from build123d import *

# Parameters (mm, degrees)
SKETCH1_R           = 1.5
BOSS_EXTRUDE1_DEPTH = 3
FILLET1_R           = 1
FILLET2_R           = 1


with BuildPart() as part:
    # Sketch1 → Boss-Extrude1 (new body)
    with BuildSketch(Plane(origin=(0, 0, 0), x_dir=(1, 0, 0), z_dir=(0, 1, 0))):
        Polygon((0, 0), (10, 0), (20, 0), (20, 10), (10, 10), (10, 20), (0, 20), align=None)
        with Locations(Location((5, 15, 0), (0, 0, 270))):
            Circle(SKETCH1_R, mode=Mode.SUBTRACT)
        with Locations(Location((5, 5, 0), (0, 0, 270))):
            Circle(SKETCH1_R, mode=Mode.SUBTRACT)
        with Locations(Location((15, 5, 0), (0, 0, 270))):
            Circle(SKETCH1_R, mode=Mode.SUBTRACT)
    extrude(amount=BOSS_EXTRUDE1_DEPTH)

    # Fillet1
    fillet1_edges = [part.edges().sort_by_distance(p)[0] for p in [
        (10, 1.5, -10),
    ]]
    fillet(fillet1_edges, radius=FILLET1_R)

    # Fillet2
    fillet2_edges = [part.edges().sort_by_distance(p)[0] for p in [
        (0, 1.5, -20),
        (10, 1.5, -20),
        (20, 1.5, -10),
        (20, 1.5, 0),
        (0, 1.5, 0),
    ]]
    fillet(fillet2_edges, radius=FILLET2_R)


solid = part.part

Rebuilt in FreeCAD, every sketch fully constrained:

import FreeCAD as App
import Part
import Sketcher
Q = App.Units.Quantity


def edges_at(feature, points):
    """Names of the edges that pass closest to the given points."""
    edges = feature.Shape.Edges
    near = lambda p: min(range(len(edges)), key=lambda i: edges[i].distToShape(Part.Vertex(*p))[0])
    return sorted({f"Edge{near(p) + 1}" for p in points})


def add_polygon(sketch, points):
    """Adds a closed chain of lines whose ends are joined by coincident constraints."""
    first, n = sketch.GeometryCount, len(points)
    for a, b in zip(points, points[1:] + points[:1]):
        sketch.addGeometry(Part.LineSegment(App.Vector(*a, 0), App.Vector(*b, 0)), False)
    for i in range(n):
        sketch.addConstraint(Sketcher.Constraint("Coincident", first + i, 2, first + (i + 1) % n, 1))

doc = App.newDocument("Part")
params = doc.addObject("Spreadsheet::Sheet", "Params")
for row, (alias, value) in enumerate([
    ("sketch1_diameter", "3 mm"),
    ("sketch1_width", "20 mm"),
    ("pad1_length", "3 mm"),
    ("fillet_radius", "1 mm"),
    ("fillet2_radius", "1 mm"),
], start=1):
    params.set(f"A{row}", alias)
    params.set(f"B{row}", "=" + value)
    params.setAlias(f"B{row}", alias)

body = doc.addObject("PartDesign::Body", "Body")

# Sketch on XZ plane
sketch1 = body.newObject("Sketcher::SketchObject", "Sketch")
sketch1.AttachmentSupport = (doc.getObject("XZ_Plane"), [""])
sketch1.MapMode = "FlatFace"
add_polygon(sketch1, [(0, 0), (20, 0), (20, -10), (10, -10), (10, -20), (0, -20)])  # lines 0-5
sketch1.addGeometry(Part.Circle(App.Vector(5, -5, 0), App.Vector(0, 0, 1), 1.5), False)  # 6
sketch1.addGeometry(Part.Circle(App.Vector(15, -5, 0), App.Vector(0, 0, 1), 1.5), False)  # 7
sketch1.addGeometry(Part.Circle(App.Vector(5, -15, 0), App.Vector(0, 0, 1), 1.5), False)  # 8
sketch1.addConstraint([
    Sketcher.Constraint("Horizontal", 0),
    Sketcher.Constraint("Vertical", 1),
    Sketcher.Constraint("Horizontal", 2),
    Sketcher.Constraint("Vertical", 3),
    Sketcher.Constraint("Horizontal", 4),
    Sketcher.Constraint("Vertical", 5),
    Sketcher.Constraint("Coincident", 5, 2, -1, 1),
    Sketcher.Constraint("Equal", 6, 7),
    Sketcher.Constraint("Equal", 7, 8),
    Sketcher.Constraint("Horizontal", 6, 3, 7, 3),
    Sketcher.Constraint("Vertical", 6, 3, 8, 3),
    Sketcher.Constraint("Equal", 2, 4),
    Sketcher.Constraint("Equal", 4, 1),
    Sketcher.Constraint("Equal", 1, 3),
    Sketcher.Constraint("Diameter", 6, Q("3 mm")),
    Sketcher.Constraint("DistanceX", 0, 1, 0, 2, Q("20 mm")),
    Sketcher.Constraint("DistanceX", -1, 1, 6, 3, Q("5 mm")),
    Sketcher.Constraint("DistanceY", 6, 3, -1, 1, Q("5 mm")),
    Sketcher.Constraint("DistanceX", -1, 1, 7, 3, Q("15 mm")),
    Sketcher.Constraint("DistanceY", 8, 3, -1, 1, Q("15 mm")),
])
sketch1.setExpression("Constraints[20]", "Params.sketch1_diameter")
sketch1.setExpression("Constraints[21]", "Params.sketch1_width")
pad1 = body.newObject("PartDesign::Pad", "Pad")
pad1.Profile = sketch1
pad1.setExpression("Length", "Params.pad1_length")
pad1.Reversed = True
doc.recompute()

fillet = body.newObject("PartDesign::Fillet", "Fillet")
fillet.Base = (pad1, edges_at(pad1, [(10, 1.5, -10)]))
fillet.setExpression("Radius", "Params.fillet_radius")
doc.recompute()

fillet2 = body.newObject("PartDesign::Fillet", "Fillet001")
fillet2.Base = (fillet, edges_at(fillet, [
    (0, 1.5, -20),
    (10, 1.5, -20),
    (20, 1.5, -10),
    (20, 1.5, 0),
    (0, 1.5, 0),
]))
fillet2.setExpression("Radius", "Params.fillet2_radius")

doc.recompute()
